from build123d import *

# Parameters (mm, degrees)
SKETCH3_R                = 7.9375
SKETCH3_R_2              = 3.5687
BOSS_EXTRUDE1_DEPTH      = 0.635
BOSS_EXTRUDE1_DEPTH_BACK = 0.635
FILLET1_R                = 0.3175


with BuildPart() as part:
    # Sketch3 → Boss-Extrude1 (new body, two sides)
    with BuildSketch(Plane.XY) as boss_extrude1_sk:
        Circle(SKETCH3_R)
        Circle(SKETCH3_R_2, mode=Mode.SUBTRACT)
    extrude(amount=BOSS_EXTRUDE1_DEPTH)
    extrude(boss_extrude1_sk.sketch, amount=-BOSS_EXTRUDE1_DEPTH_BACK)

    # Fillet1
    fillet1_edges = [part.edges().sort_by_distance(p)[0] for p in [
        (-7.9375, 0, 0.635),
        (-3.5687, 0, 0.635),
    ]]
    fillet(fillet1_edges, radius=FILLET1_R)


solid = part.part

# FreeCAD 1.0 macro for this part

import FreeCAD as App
import Part
import Sketcher
from FreeCAD import Vector
Q = App.Units.Quantity


def edges_at(feature, points):
    """Names of the edges that pass closest to the given points."""
    edges = feature.Shape.Edges
    near = lambda p: min(range(len(edges)), key=lambda i: edges[i].distToShape(Part.Vertex(*p))[0])
    return sorted({f"Edge{near(p) + 1}" for p in points})

doc = App.newDocument("Part")
body = doc.addObject("PartDesign::Body", "Body")

# Sketch on XY plane
sketch1 = body.newObject("Sketcher::SketchObject", "Sketch")
sketch1.AttachmentSupport = (doc.getObject("XY_Plane"), [""])
sketch1.MapMode = "FlatFace"
sketch1.addGeometry(Part.Circle(Vector(0, 0, 0), Vector(0, 0, 1), 7.9), False)
sketch1.addGeometry(Part.Circle(Vector(0, 0, 0), Vector(0, 0, 1), 3.6), False)
sketch1.addConstraint(Sketcher.Constraint("Coincident", 0, 3, -1, 1))
sketch1.addConstraint(Sketcher.Constraint("Coincident", 1, 3, -1, 1))
sketch1.addConstraint(Sketcher.Constraint("Diameter", 0, Q("0.625 in")))
sketch1.addConstraint(Sketcher.Constraint("Diameter", 1, Q("0.281 in")))
pad1 = body.newObject("PartDesign::Pad", "Pad")
pad1.Profile = sketch1
pad1.Type = "TwoLengths"
pad1.Length = Q("0.025 in")
pad1.Length2 = Q("0.025 in")
doc.recompute()

fillet = body.newObject("PartDesign::Fillet", "Fillet")
fillet.Base = (pad1, edges_at(pad1, [(-7.938, 0, 0.635), (-3.569, 0, 0.635)]))
fillet.Radius = Q("0.0125 in")

doc.recompute()
